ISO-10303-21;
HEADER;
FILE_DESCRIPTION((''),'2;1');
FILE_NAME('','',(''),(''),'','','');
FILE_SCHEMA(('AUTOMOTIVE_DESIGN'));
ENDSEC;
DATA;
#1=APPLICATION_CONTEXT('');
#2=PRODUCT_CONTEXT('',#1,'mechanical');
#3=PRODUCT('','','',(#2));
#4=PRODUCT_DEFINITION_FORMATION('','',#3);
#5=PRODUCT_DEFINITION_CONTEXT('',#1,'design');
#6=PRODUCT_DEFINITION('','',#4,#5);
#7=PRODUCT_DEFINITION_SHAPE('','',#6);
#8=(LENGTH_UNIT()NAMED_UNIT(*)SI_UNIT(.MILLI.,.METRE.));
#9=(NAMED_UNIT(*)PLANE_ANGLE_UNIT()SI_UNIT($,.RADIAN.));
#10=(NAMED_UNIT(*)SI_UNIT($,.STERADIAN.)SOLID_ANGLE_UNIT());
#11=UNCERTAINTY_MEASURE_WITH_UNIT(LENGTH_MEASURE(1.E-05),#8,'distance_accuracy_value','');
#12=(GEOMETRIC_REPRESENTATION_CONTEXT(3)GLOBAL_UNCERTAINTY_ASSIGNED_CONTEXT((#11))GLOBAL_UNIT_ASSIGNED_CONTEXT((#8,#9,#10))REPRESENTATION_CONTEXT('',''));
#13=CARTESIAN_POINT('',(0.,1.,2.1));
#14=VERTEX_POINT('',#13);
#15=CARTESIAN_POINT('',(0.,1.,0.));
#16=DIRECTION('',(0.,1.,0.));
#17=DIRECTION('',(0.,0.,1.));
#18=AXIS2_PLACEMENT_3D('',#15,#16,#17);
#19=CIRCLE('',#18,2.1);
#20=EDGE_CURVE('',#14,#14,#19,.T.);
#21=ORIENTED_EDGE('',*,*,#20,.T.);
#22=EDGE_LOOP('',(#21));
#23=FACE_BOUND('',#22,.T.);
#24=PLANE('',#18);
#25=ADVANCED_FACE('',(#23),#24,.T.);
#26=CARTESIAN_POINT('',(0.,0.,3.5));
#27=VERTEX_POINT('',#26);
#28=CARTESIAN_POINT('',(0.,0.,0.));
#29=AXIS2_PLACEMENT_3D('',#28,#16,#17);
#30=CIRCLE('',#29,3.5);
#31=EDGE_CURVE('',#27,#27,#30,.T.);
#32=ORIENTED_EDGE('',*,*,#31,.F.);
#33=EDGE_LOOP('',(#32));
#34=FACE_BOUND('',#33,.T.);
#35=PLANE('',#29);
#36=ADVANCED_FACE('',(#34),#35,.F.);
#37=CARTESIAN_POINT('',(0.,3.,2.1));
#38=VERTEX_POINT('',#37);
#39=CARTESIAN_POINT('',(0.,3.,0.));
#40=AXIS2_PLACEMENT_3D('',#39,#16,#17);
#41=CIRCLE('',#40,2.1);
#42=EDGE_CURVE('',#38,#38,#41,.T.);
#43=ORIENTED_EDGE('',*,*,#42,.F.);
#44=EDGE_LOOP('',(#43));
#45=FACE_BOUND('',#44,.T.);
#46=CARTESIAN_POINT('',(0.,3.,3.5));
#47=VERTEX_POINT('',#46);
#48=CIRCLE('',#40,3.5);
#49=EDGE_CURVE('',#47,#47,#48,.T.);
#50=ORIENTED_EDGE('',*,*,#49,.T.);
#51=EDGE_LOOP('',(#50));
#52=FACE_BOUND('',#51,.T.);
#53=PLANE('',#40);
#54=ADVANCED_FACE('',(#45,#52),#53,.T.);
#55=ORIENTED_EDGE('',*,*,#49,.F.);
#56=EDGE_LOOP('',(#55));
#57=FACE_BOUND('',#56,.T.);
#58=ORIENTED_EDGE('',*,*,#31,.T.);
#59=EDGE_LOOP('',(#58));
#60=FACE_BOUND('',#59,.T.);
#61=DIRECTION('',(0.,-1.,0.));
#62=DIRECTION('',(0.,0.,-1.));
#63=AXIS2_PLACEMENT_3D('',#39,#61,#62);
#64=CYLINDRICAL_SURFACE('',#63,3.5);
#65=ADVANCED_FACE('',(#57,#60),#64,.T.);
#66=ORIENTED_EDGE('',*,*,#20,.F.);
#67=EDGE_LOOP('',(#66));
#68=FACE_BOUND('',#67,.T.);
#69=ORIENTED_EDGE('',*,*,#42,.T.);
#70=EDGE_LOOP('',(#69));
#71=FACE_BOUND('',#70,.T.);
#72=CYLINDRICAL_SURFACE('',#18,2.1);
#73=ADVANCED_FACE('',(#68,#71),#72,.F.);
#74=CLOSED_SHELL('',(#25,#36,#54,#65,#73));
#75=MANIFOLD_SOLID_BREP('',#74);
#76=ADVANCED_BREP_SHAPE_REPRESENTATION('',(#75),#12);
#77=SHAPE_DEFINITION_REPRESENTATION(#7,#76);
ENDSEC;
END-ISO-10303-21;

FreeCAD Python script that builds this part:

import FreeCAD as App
import Part
import Sketcher
from FreeCAD import Vector

doc = App.newDocument("Part")
body = doc.addObject("PartDesign::Body", "Body")

sketch1 = doc.addObject("Sketcher::SketchObject", "Sketch")
body.addObject(sketch1)
sketch1.AttachmentSupport = (doc.XZ_Plane, [""])
sketch1.MapMode = "FlatFace"
sketch1.addGeometry(Part.Circle(Vector(0, 0, 0), Vector(0, 0, 1), 3.5), False)
sketch1.addConstraint([
    Sketcher.Constraint("Coincident", 0, 3, -1, 1),
    Sketcher.Constraint("Diameter", 0, 7.0),
])
pad1 = doc.addObject("PartDesign::Pad", "Pad")
body.addObject(pad1)
pad1.Profile = sketch1
pad1.Length = 3
pad1.Reversed = True

sketch2 = doc.addObject("Sketcher::SketchObject", "Sketch001")
body.addObject(sketch2)
sketch2.AttachmentSupport = (doc.XZ_Plane, [""])
sketch2.MapMode = "FlatFace"
sketch2.AttachmentOffset = App.Placement(Vector(0, 0, -3), App.Rotation())
sketch2.addGeometry(Part.Circle(Vector(0, 0, 0), Vector(0, 0, 1), 2.1), False)
sketch2.addConstraint([
    Sketcher.Constraint("Coincident", 0, 3, -1, 1),
    Sketcher.Constraint("Diameter", 0, 4.2),
])
pocket1 = doc.addObject("PartDesign::Pocket", "Pocket")
body.addObject(pocket1)
pocket1.Profile = sketch2
pocket1.Length = 2
pocket1.Reversed = True

doc.recompute()
